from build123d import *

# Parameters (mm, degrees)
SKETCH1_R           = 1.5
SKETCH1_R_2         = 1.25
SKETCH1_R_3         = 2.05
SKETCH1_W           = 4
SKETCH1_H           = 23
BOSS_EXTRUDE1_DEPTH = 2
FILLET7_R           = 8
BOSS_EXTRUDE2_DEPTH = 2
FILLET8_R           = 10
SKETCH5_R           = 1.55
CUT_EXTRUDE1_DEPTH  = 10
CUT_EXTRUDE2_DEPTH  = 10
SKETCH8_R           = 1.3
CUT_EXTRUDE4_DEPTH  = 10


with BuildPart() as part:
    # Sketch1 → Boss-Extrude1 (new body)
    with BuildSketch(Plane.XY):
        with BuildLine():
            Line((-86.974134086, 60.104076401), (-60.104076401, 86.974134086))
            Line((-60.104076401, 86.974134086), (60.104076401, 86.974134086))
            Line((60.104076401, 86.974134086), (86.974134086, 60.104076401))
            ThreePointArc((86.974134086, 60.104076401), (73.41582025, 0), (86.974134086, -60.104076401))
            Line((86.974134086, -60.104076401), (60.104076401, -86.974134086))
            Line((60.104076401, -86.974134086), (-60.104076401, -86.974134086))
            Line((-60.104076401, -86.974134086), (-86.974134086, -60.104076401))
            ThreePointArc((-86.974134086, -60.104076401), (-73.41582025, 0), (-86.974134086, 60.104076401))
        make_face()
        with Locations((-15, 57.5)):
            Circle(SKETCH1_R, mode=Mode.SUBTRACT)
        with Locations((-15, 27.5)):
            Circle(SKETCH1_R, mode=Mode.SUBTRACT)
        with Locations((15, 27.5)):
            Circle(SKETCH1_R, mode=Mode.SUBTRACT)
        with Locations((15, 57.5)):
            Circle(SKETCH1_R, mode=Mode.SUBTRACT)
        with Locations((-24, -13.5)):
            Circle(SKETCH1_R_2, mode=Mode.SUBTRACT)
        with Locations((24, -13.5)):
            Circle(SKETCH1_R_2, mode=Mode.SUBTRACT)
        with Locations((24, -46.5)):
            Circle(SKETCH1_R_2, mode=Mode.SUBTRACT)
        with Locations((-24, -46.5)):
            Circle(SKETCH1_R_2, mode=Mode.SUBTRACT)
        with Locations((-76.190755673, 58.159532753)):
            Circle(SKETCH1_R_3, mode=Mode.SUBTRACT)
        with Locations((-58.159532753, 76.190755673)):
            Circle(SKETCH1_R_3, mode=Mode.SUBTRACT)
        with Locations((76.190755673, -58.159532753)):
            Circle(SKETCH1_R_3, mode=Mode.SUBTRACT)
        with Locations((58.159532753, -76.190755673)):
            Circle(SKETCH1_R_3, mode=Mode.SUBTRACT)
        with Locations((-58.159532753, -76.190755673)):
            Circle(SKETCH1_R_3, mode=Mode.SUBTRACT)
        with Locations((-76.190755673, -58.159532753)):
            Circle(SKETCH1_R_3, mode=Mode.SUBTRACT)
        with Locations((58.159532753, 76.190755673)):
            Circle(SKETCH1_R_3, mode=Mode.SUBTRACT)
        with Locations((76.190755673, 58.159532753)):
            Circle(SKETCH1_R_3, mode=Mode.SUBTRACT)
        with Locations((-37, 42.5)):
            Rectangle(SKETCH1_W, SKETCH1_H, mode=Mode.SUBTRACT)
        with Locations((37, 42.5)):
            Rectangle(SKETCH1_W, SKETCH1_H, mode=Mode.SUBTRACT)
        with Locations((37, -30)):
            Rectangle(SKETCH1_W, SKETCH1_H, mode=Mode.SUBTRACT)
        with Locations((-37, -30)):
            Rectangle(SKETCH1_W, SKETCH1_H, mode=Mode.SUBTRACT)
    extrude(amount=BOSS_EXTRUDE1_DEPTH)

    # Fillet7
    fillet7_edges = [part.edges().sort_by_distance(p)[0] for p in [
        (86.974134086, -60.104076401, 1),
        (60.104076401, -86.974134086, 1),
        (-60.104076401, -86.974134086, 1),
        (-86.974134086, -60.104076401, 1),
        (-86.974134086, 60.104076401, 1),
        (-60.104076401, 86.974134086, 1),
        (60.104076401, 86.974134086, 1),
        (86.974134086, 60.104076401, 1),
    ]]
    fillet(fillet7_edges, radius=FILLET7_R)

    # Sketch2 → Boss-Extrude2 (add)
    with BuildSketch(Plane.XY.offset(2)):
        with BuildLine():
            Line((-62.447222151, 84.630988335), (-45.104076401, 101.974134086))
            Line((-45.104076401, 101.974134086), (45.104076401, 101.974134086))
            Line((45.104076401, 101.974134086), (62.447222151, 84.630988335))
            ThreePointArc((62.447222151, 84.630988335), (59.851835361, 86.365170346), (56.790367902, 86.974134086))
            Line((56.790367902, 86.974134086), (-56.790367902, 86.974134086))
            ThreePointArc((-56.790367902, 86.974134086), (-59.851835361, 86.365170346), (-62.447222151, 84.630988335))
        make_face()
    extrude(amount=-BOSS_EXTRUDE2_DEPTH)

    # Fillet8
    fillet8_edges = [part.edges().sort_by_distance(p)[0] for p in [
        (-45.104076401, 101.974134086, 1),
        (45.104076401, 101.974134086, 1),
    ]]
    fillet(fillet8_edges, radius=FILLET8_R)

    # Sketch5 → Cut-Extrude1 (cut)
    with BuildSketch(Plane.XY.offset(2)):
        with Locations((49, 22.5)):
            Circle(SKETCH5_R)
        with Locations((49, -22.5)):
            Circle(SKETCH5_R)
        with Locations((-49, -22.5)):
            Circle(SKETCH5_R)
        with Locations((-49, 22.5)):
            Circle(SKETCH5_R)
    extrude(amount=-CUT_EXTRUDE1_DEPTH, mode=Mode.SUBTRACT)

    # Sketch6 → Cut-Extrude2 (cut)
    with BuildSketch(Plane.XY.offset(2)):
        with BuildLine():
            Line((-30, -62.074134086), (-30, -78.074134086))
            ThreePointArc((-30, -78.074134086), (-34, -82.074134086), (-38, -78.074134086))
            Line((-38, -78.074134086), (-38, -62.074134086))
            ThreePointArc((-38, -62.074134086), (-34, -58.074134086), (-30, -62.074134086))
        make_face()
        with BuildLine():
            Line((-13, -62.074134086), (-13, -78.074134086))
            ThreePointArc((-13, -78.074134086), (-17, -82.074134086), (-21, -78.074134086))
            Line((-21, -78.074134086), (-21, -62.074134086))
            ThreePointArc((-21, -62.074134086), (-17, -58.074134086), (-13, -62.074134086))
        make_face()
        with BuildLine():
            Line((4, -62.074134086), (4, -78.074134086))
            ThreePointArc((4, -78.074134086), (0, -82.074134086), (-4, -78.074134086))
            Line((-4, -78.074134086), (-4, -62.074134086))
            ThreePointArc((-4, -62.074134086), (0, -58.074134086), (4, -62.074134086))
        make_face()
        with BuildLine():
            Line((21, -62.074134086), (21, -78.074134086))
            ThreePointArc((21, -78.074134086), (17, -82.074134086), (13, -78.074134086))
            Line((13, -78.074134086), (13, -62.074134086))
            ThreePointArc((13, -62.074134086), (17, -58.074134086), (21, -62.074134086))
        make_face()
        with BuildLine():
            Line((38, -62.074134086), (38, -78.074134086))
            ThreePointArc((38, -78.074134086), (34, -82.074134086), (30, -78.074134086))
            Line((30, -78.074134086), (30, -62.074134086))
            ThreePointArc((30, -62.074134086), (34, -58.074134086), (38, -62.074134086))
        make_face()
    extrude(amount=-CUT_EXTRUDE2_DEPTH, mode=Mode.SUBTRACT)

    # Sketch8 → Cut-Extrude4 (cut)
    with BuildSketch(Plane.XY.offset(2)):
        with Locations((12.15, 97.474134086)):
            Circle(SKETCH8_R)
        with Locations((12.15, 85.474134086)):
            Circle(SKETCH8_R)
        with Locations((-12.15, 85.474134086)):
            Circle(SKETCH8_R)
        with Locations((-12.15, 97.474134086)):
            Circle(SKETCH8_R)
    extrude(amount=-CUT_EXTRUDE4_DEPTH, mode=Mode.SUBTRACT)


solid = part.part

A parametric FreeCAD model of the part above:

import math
import FreeCAD as App
import Part
import Sketcher


def edges_at(feature, points):
    """Names of the edges that pass closest to the given points."""
    edges = feature.Shape.Edges
    near = lambda p: min(range(len(edges)), key=lambda i: edges[i].distToShape(Part.Vertex(*p))[0])
    return sorted({f"Edge{near(p) + 1}" for p in points})

doc = App.newDocument("Part")
body = doc.addObject("PartDesign::Body", "Body")

sketch1 = doc.addObject("Sketcher::SketchObject", "Sketch")
body.addObject(sketch1)
sketch1.AttachmentSupport = (doc.XY_Plane, [""])
sketch1.MapMode = "FlatFace"
sketch1.addGeometry([
    Part.LineSegment(App.Vector(-60.1, 87, 0), App.Vector(-87, 60.1, 0)),
    Part.ArcOfCircle(Part.Circle(App.Vector(-213.4, 0, 0), App.Vector(0, 0, 1), 140), math.radians(-25), math.radians(25)),
    Part.LineSegment(App.Vector(-87, -60.1, 0), App.Vector(-60.1, -87, 0)),
    Part.LineSegment(App.Vector(-60.1, -87, 0), App.Vector(60.1, -87, 0)),
    Part.LineSegment(App.Vector(60.1, -87, 0), App.Vector(87, -60.1, 0)),
    Part.ArcOfCircle(Part.Circle(App.Vector(213.4, 0, 0), App.Vector(0, 0, 1), 140), math.radians(155), math.radians(205)),
    Part.LineSegment(App.Vector(87, 60.1, 0), App.Vector(60.1, 87, 0)),
    Part.LineSegment(App.Vector(60.1, 87, 0), App.Vector(-60.1, 87, 0)),
    Part.Circle(App.Vector(58.2, -76.2, 0), App.Vector(0, 0, 1), 2),
    Part.Circle(App.Vector(76.2, -58.2, 0), App.Vector(0, 0, 1), 2),
    Part.Circle(App.Vector(24, -46.5, 0), App.Vector(0, 0, 1), 1.2),
    Part.LineSegment(App.Vector(35, -41.5, 0), App.Vector(35, -18.5, 0)),
    Part.LineSegment(App.Vector(35, -18.5, 0), App.Vector(39, -18.5, 0)),
    Part.LineSegment(App.Vector(39, -18.5, 0), App.Vector(39, -41.5, 0)),
    Part.LineSegment(App.Vector(39, -41.5, 0), App.Vector(35, -41.5, 0)),
    Part.Circle(App.Vector(24, -13.5, 0), App.Vector(0, 0, 1), 1.2),
    Part.Circle(App.Vector(-24, -46.5, 0), App.Vector(0, 0, 1), 1.2),
    Part.Circle(App.Vector(-58.2, -76.2, 0), App.Vector(0, 0, 1), 2),
    Part.Circle(App.Vector(-76.2, -58.2, 0), App.Vector(0, 0, 1), 2),
    Part.LineSegment(App.Vector(-39, -41.5, 0), App.Vector(-39, -18.5, 0)),
    Part.LineSegment(App.Vector(-39, -18.5, 0), App.Vector(-35, -18.5, 0)),
    Part.LineSegment(App.Vector(-35, -18.5, 0), App.Vector(-35, -41.5, 0)),
    Part.LineSegment(App.Vector(-35, -41.5, 0), App.Vector(-39, -41.5, 0)),
    Part.Circle(App.Vector(-24, -13.5, 0), App.Vector(0, 0, 1), 1.2),
    Part.Circle(App.Vector(15, 27.5, 0), App.Vector(0, 0, 1), 1.5),
    Part.Circle(App.Vector(76.2, 58.2, 0), App.Vector(0, 0, 1), 2),
    Part.Circle(App.Vector(58.2, 76.2, 0), App.Vector(0, 0, 1), 2),
    Part.LineSegment(App.Vector(35, 31, 0), App.Vector(35, 54, 0)),
    Part.LineSegment(App.Vector(35, 54, 0), App.Vector(39, 54, 0)),
    Part.LineSegment(App.Vector(39, 54, 0), App.Vector(39, 31, 0)),
    Part.LineSegment(App.Vector(39, 31, 0), App.Vector(35, 31, 0)),
    Part.Circle(App.Vector(15, 57.5, 0), App.Vector(0, 0, 1), 1.5),
    Part.Circle(App.Vector(-15, 27.5, 0), App.Vector(0, 0, 1), 1.5),
    Part.Circle(App.Vector(-15, 57.5, 0), App.Vector(0, 0, 1), 1.5),
    Part.LineSegment(App.Vector(-39, 31, 0), App.Vector(-39, 54, 0)),
    Part.LineSegment(App.Vector(-39, 54, 0), App.Vector(-35, 54, 0)),
    Part.LineSegment(App.Vector(-35, 54, 0), App.Vector(-35, 31, 0)),
    Part.LineSegment(App.Vector(-35, 31, 0), App.Vector(-39, 31, 0)),
    Part.Circle(App.Vector(-76.2, 58.2, 0), App.Vector(0, 0, 1), 2),
    Part.Circle(App.Vector(-58.2, 76.2, 0), App.Vector(0, 0, 1), 2),
], False)
sketch1.addConstraint([
    Sketcher.Constraint("Coincident", 0, 2, 1, 2),
    Sketcher.Constraint("Coincident", 1, 1, 2, 1),
    Sketcher.Constraint("Coincident", 2, 2, 3, 1),
    Sketcher.Constraint("Coincident", 3, 2, 4, 1),
    Sketcher.Constraint("Coincident", 4, 2, 5, 2),
    Sketcher.Constraint("Coincident", 5, 1, 6, 1),
    Sketcher.Constraint("Coincident", 6, 2, 7, 1),
    Sketcher.Constraint("Coincident", 7, 2, 0, 1),
    Sketcher.Constraint("Coincident", 11, 2, 12, 1),
    Sketcher.Constraint("Coincident", 12, 2, 13, 1),
    Sketcher.Constraint("Coincident", 13, 2, 14, 1),
    Sketcher.Constraint("Coincident", 14, 2, 11, 1),
    Sketcher.Constraint("Coincident", 19, 2, 20, 1),
    Sketcher.Constraint("Coincident", 20, 2, 21, 1),
    Sketcher.Constraint("Coincident", 21, 2, 22, 1),
    Sketcher.Constraint("Coincident", 22, 2, 19, 1),
    Sketcher.Constraint("Coincident", 27, 2, 28, 1),
    Sketcher.Constraint("Coincident", 28, 2, 29, 1),
    Sketcher.Constraint("Coincident", 29, 2, 30, 1),
    Sketcher.Constraint("Coincident", 30, 2, 27, 1),
    Sketcher.Constraint("Coincident", 34, 2, 35, 1),
    Sketcher.Constraint("Coincident", 35, 2, 36, 1),
    Sketcher.Constraint("Coincident", 36, 2, 37, 1),
    Sketcher.Constraint("Coincident", 37, 2, 34, 1),
    Sketcher.Constraint("Horizontal", 3),
    Sketcher.Constraint("Horizontal", 7),
    Sketcher.Constraint("Vertical", 11),
    Sketcher.Constraint("Horizontal", 12),
    Sketcher.Constraint("Vertical", 13),
    Sketcher.Constraint("Horizontal", 14),
    Sketcher.Constraint("Vertical", 19),
    Sketcher.Constraint("Horizontal", 20),
    Sketcher.Constraint("Vertical", 21),
    Sketcher.Constraint("Horizontal", 22),
    Sketcher.Constraint("Vertical", 27),
    Sketcher.Constraint("Horizontal", 28),
    Sketcher.Constraint("Vertical", 29),
    Sketcher.Constraint("Horizontal", 30),
    Sketcher.Constraint("Vertical", 34),
    Sketcher.Constraint("Horizontal", 35),
    Sketcher.Constraint("Vertical", 36),
    Sketcher.Constraint("Horizontal", 37),
    Sketcher.Constraint("Equal", 1, 5),
    Sketcher.Constraint("Equal", 8, 9),
    Sketcher.Constraint("Equal", 10, 15),
    Sketcher.Constraint("Equal", 15, 16),
    Sketcher.Constraint("Equal", 9, 17),
    Sketcher.Constraint("Equal", 17, 18),
    Sketcher.Constraint("Equal", 16, 23),
    Sketcher.Constraint("Equal", 18, 25),
    Sketcher.Constraint("Equal", 25, 26),
    Sketcher.Constraint("Equal", 24, 31),
    Sketcher.Constraint("Equal", 31, 32),
    Sketcher.Constraint("Equal", 32, 33),
    Sketcher.Constraint("Equal", 26, 38),
    Sketcher.Constraint("Equal", 38, 39),
    Sketcher.Constraint("Symmetric", 1, 3, 5, 3, -1, 1),
    Sketcher.Constraint("Symmetric", 18, 3, 25, 3, -1, 1),
    Sketcher.Constraint("Symmetric", 17, 3, 26, 3, -1, 1),
    Sketcher.Constraint("Symmetric", 9, 3, 38, 3, -1, 1),
    Sketcher.Constraint("Symmetric", 8, 3, 39, 3, -1, 1),
    Sketcher.Constraint("Symmetric", 2, 2, 6, 2, -1, 1),
    Sketcher.Constraint("Symmetric", 10, 3, 16, 3, -2),
    Sketcher.Constraint("Symmetric", 8, 3, 17, 3, -2),
    Sketcher.Constraint("Symmetric", 9, 3, 18, 3, -2),
    Sketcher.Constraint("Symmetric", 15, 3, 23, 3, -2),
    Sketcher.Constraint("Symmetric", 24, 3, 32, 3, -2),
    Sketcher.Constraint("Symmetric", 31, 3, 33, 3, -2),
    Sketcher.Constraint("Symmetric", 1, 1, 4, 2, -2),
    Sketcher.Constraint("Symmetric", 12, 2, 19, 2, -2),
    Sketcher.Constraint("Symmetric", 14, 2, 21, 2, -2),
    Sketcher.Constraint("Symmetric", 28, 2, 34, 2, -2),
    Sketcher.Constraint("Symmetric", 30, 2, 36, 2, -2),
    Sketcher.Constraint("Perpendicular", 0, 2),
    Sketcher.Constraint("Perpendicular", 2, 4),
    Sketcher.Constraint("Perpendicular", 4, 6),
    Sketcher.Constraint("Horizontal", 0, 2, 5, 1),
    Sketcher.Constraint("Vertical", 10, 3, 15, 3),
    Sketcher.Constraint("Vertical", 24, 3, 31, 3),
    Sketcher.Constraint("Vertical", 3, 2, 6, 2),
    Sketcher.Constraint("Vertical", 14, 2, 27, 2),
    Sketcher.Constraint("Vertical", 13, 2, 28, 2),
    Sketcher.Constraint("Equal", 21, 27),
    Sketcher.Constraint("Diameter", 24, 3.0),
    Sketcher.Constraint("Radius", 1, 140.0),
    Sketcher.Constraint("Diameter", 8, 4.1),
    Sketcher.Constraint("Diameter", 10, 2.5),
    Sketcher.Constraint("DistanceX", 12, 1, 12, 2, 4.0),
    Sketcher.Constraint("DistanceY", 11, 1, 11, 2, 23.0),
    Sketcher.Constraint("Distance", 0, 38.0),
    Sketcher.Constraint("DistanceX", -1, 1, 10, 3, 24.0),
    Sketcher.Constraint("DistanceX", -1, 1, 24, 3, 15.0),
    Sketcher.Constraint("DistanceX", -1, 1, 11, 2, 35.0),
    Sketcher.Constraint("DistanceY", -1, 1, 27, 2, 54.0),
    Sketcher.Constraint("DistanceY", 10, 3, 15, 3, 33.0),
    Sketcher.Constraint("DistanceY", 15, 3, 24, 3, 41.0),
    Sketcher.Constraint("DistanceY", 24, 3, 31, 3, 30.0),
    Sketcher.Constraint("DistanceY", 11, 2, 15, 3, 5.0),
    Sketcher.Constraint("DistanceY", 10, 3, -1, 1, 46.5),
    Sketcher.Constraint("DistanceX", 0, 2, 39, 3, 28.814601),
    Sketcher.Constraint("DistanceY", 2, 2, 18, 3, 28.814601),
    Sketcher.Constraint("DistanceX", 3, 1, 3, 2, 120.208153),
    Sketcher.Constraint("DistanceX", 1, 3, -1, 1, 213.41582),
    Sketcher.Constraint("DistanceX", 17, 3, 9, 3, 134.350288),
    Sketcher.Constraint("DistanceY", 0, 2, 39, 3, 16.086679),
])
pad1 = doc.addObject("PartDesign::Pad", "Pad")
body.addObject(pad1)
pad1.Profile = sketch1
pad1.Length = 2
doc.recompute()

fillet = doc.addObject("PartDesign::Fillet", "Fillet")
body.addObject(fillet)
fillet.Base = (pad1, edges_at(pad1, [
    (86.974, -60.104, 1),
    (60.104, -86.974, 1),
    (-60.104, -86.974, 1),
    (-86.974, -60.104, 1),
    (-86.974, 60.104, 1),
    (-60.104, 86.974, 1),
    (60.104, 86.974, 1),
    (86.974, 60.104, 1),
]))
fillet.Radius = 8

sketch2 = doc.addObject("Sketcher::SketchObject", "Sketch001")
body.addObject(sketch2)
sketch2.AttachmentSupport = (doc.XY_Plane, [""])
sketch2.MapMode = "FlatFace"
sketch2.AttachmentOffset = App.Placement(App.Vector(0, 0, 2), App.Rotation())
sketch2.addGeometry([
    Part.LineSegment(App.Vector(-45, 102, 0), App.Vector(-62, 85, 0)),
    Part.ArcOfCircle(Part.Circle(App.Vector(-57, 79, 0), App.Vector(0, 0, 1), 8), math.radians(90), math.radians(135)),
    Part.LineSegment(App.Vector(-57, 87, 0), App.Vector(57, 87, 0)),
    Part.ArcOfCircle(Part.Circle(App.Vector(57, 79, 0), App.Vector(0, 0, 1), 8), math.radians(45), math.radians(90)),
    Part.LineSegment(App.Vector(62, 85, 0), App.Vector(45, 102, 0)),
    Part.LineSegment(App.Vector(45, 102, 0), App.Vector(-45, 102, 0)),
], False)
sketch2.addConstraint([
    Sketcher.Constraint("Tangent", 0, 2, 1, 2),
    Sketcher.Constraint("Tangent", 1, 1, 2, 1),
    Sketcher.Constraint("Tangent", 2, 2, 3, 2),
    Sketcher.Constraint("Tangent", 3, 1, 4, 1),
    Sketcher.Constraint("Coincident", 4, 2, 5, 1),
    Sketcher.Constraint("Coincident", 5, 2, 0, 1),
    Sketcher.Constraint("Horizontal", 2),
    Sketcher.Constraint("Horizontal", 5),
    Sketcher.Constraint("Equal", 1, 3),
    Sketcher.Constraint("Symmetric", 0, 2, 3, 1, -2),
    Sketcher.Constraint("Perpendicular", 0, 4),
    Sketcher.Constraint("Radius", 1, 8.0),
    Sketcher.Constraint("DistanceY", 2, 2, 4, 2, 15.0),
    Sketcher.Constraint("DistanceX", 2, 1, 2, 2, 113.580736),
    Sketcher.Constraint("DistanceY", -1, 1, 0, 2, 84.630988),
])
pad2 = doc.addObject("PartDesign::Pad", "Pad001")
body.addObject(pad2)
pad2.Profile = sketch2
pad2.Length = 2
pad2.Reversed = True
doc.recompute()

fillet2 = doc.addObject("PartDesign::Fillet", "Fillet001")
body.addObject(fillet2)
fillet2.Base = (pad2, edges_at(pad2, [(-45.104, 101.974, 1), (45.104, 101.974, 1)]))
fillet2.Radius = 10

sketch3 = doc.addObject("Sketcher::SketchObject", "Sketch002")
body.addObject(sketch3)
sketch3.AttachmentSupport = (doc.XY_Plane, [""])
sketch3.MapMode = "FlatFace"
sketch3.AttachmentOffset = App.Placement(App.Vector(0, 0, 2), App.Rotation())
sketch3.addGeometry([
    Part.Circle(App.Vector(49, 22.5, 0), App.Vector(0, 0, 1), 1.6),
    Part.Circle(App.Vector(49, -22.5, 0), App.Vector(0, 0, 1), 1.6),
    Part.Circle(App.Vector(-49, -22.5, 0), App.Vector(0, 0, 1), 1.6),
    Part.Circle(App.Vector(-49, 22.5, 0), App.Vector(0, 0, 1), 1.6),
], False)
sketch3.addConstraint([
    Sketcher.Constraint("Equal", 0, 1),
    Sketcher.Constraint("Equal", 1, 2),
    Sketcher.Constraint("Equal", 2, 3),
    Sketcher.Constraint("Symmetric", 0, 3, 2, 3, -1, 1),
    Sketcher.Constraint("Symmetric", 1, 3, 3, 3, -1, 1),
    Sketcher.Constraint("Symmetric", 1, 3, 2, 3, -2),
    Sketcher.Constraint("Diameter", 0, 3.1),
    Sketcher.Constraint("DistanceX", -1, 1, 0, 3, 49.0),
    Sketcher.Constraint("DistanceY", 1, 3, 0, 3, 45.0),
])
pocket1 = doc.addObject("PartDesign::Pocket", "Pocket")
body.addObject(pocket1)
pocket1.Profile = sketch3
pocket1.Length = 10

sketch4 = doc.addObject("Sketcher::SketchObject", "Sketch003")
body.addObject(sketch4)
sketch4.AttachmentSupport = (doc.XY_Plane, [""])
sketch4.MapMode = "FlatFace"
sketch4.AttachmentOffset = App.Placement(App.Vector(0, 0, 2), App.Rotation())
sketch4.addGeometry([
    Part.LineSegment(App.Vector(-30, -78.1, 0), App.Vector(-30, -62.1, 0)),
    Part.ArcOfCircle(Part.Circle(App.Vector(-34, -62.1, 0), App.Vector(0, 0, 1), 4), math.radians(0), math.radians(180)),
    Part.LineSegment(App.Vector(-38, -62.1, 0), App.Vector(-38, -78.1, 0)),
    Part.ArcOfCircle(Part.Circle(App.Vector(-34, -78.1, 0), App.Vector(0, 0, 1), 4), math.radians(180), math.radians(360)),
    Part.LineSegment(App.Vector(-13, -78.1, 0), App.Vector(-13, -62.1, 0)),
    Part.ArcOfCircle(Part.Circle(App.Vector(-17, -62.1, 0), App.Vector(0, 0, 1), 4), math.radians(0), math.radians(180)),
    Part.LineSegment(App.Vector(-21, -62.1, 0), App.Vector(-21, -78.1, 0)),
    Part.ArcOfCircle(Part.Circle(App.Vector(-17, -78.1, 0), App.Vector(0, 0, 1), 4), math.radians(180), math.radians(360)),
    Part.LineSegment(App.Vector(4, -78.1, 0), App.Vector(4, -62.1, 0)),
    Part.ArcOfCircle(Part.Circle(App.Vector(0, -62.1, 0), App.Vector(0, 0, 1), 4), math.radians(0), math.radians(180)),
    Part.LineSegment(App.Vector(-4, -62.1, 0), App.Vector(-4, -78.1, 0)),
    Part.ArcOfCircle(Part.Circle(App.Vector(0, -78.1, 0), App.Vector(0, 0, 1), 4), math.radians(180), math.radians(360)),
    Part.LineSegment(App.Vector(21, -78.1, 0), App.Vector(21, -62.1, 0)),
    Part.ArcOfCircle(Part.Circle(App.Vector(17, -62.1, 0), App.Vector(0, 0, 1), 4), math.radians(0), math.radians(180)),
    Part.LineSegment(App.Vector(13, -62.1, 0), App.Vector(13, -78.1, 0)),
    Part.ArcOfCircle(Part.Circle(App.Vector(17, -78.1, 0), App.Vector(0, 0, 1), 4), math.radians(180), math.radians(360)),
    Part.LineSegment(App.Vector(38, -78.1, 0), App.Vector(38, -62.1, 0)),
    Part.ArcOfCircle(Part.Circle(App.Vector(34, -62.1, 0), App.Vector(0, 0, 1), 4), math.radians(0), math.radians(180)),
    Part.LineSegment(App.Vector(30, -62.1, 0), App.Vector(30, -78.1, 0)),
    Part.ArcOfCircle(Part.Circle(App.Vector(34, -78.1, 0), App.Vector(0, 0, 1), 4), math.radians(180), math.radians(360)),
], False)
sketch4.addConstraint([
    Sketcher.Constraint("Tangent", 0, 2, 1, 1),
    Sketcher.Constraint("Tangent", 1, 2, 2, 1),
    Sketcher.Constraint("Tangent", 2, 2, 3, 1),
    Sketcher.Constraint("Tangent", 3, 2, 0, 1),
    Sketcher.Constraint("Tangent", 4, 2, 5, 1),
    Sketcher.Constraint("Tangent", 5, 2, 6, 1),
    Sketcher.Constraint("Tangent", 6, 2, 7, 1),
    Sketcher.Constraint("Tangent", 7, 2, 4, 1),
    Sketcher.Constraint("Tangent", 8, 2, 9, 1),
    Sketcher.Constraint("Tangent", 9, 2, 10, 1),
    Sketcher.Constraint("Tangent", 10, 2, 11, 1),
    Sketcher.Constraint("Tangent", 11, 2, 8, 1),
    Sketcher.Constraint("Tangent", 12, 2, 13, 1),
    Sketcher.Constraint("Tangent", 13, 2, 14, 1),
    Sketcher.Constraint("Tangent", 14, 2, 15, 1),
    Sketcher.Constraint("Tangent", 15, 2, 12, 1),
    Sketcher.Constraint("Tangent", 16, 2, 17, 1),
    Sketcher.Constraint("Tangent", 17, 2, 18, 1),
    Sketcher.Constraint("Tangent", 18, 2, 19, 1),
    Sketcher.Constraint("Tangent", 19, 2, 16, 1),
    Sketcher.Constraint("Vertical", 0),
    Sketcher.Constraint("Vertical", 2),
    Sketcher.Constraint("Vertical", 4),
    Sketcher.Constraint("Vertical", 6),
    Sketcher.Constraint("Vertical", 8),
    Sketcher.Constraint("Vertical", 10),
    Sketcher.Constraint("Vertical", 12),
    Sketcher.Constraint("Vertical", 14),
    Sketcher.Constraint("Vertical", 16),
    Sketcher.Constraint("Vertical", 18),
    Sketcher.Constraint("Equal", 3, 5),
    Sketcher.Constraint("Equal", 7, 9),
    Sketcher.Constraint("Equal", 11, 13),
    Sketcher.Constraint("Equal", 15, 17),
    Sketcher.Constraint("Symmetric", 5, 3, 13, 3, -2),
    Sketcher.Constraint("Symmetric", 1, 3, 17, 3, -2),
    Sketcher.Constraint("PointOnObject", 9, 3, -2),
    Sketcher.Constraint("Horizontal", 1, 3, 5, 3),
    Sketcher.Constraint("Horizontal", 3, 3, 7, 3),
    Sketcher.Constraint("Horizontal", 5, 3, 9, 3),
    Sketcher.Constraint("Horizontal", 7, 3, 11, 3),
    Sketcher.Constraint("Horizontal", 11, 3, 15, 3),
    Sketcher.Constraint("Horizontal", 15, 3, 19, 3),
    Sketcher.Constraint("Radius", 1, 4.0),
    Sketcher.Constraint("DistanceY", 0, 1, 0, 2, 16.0),
    Sketcher.Constraint("DistanceX", 1, 3, -1, 1, 34.0),
    Sketcher.Constraint("DistanceX", 5, 3, -1, 1, 17.0),
    Sketcher.Constraint("DistanceY", 1, 3, -1, 1, 62.074134),
])
pocket2 = doc.addObject("PartDesign::Pocket", "Pocket001")
body.addObject(pocket2)
pocket2.Profile = sketch4
pocket2.Length = 10

sketch5 = doc.addObject("Sketcher::SketchObject", "Sketch004")
body.addObject(sketch5)
sketch5.AttachmentSupport = (doc.XY_Plane, [""])
sketch5.MapMode = "FlatFace"
sketch5.AttachmentOffset = App.Placement(App.Vector(0, 0, 2), App.Rotation())
sketch5.addGeometry([
    Part.Circle(App.Vector(12.2, 97.5, 0), App.Vector(0, 0, 1), 1.3),
    Part.Circle(App.Vector(12.2, 85.5, 0), App.Vector(0, 0, 1), 1.3),
    Part.Circle(App.Vector(-12.2, 85.5, 0), App.Vector(0, 0, 1), 1.3),
    Part.Circle(App.Vector(-12.2, 97.5, 0), App.Vector(0, 0, 1), 1.3),
], False)
sketch5.addConstraint([
    Sketcher.Constraint("Equal", 0, 1),
    Sketcher.Constraint("Equal", 1, 2),
    Sketcher.Constraint("Equal", 2, 3),
    Sketcher.Constraint("Symmetric", 1, 3, 2, 3, -2),
    Sketcher.Constraint("Symmetric", 0, 3, 3, 3, -2),
    Sketcher.Constraint("Vertical", 0, 3, 1, 3),
    Sketcher.Constraint("Diameter", 0, 2.6),
    Sketcher.Constraint("DistanceY", 1, 3, 0, 3, 12.0),
    Sketcher.Constraint("DistanceX", 2, 3, 1, 3, 24.3),
    Sketcher.Constraint("DistanceY", -1, 1, 0, 3, 97.474134),
])
pocket3 = doc.addObject("PartDesign::Pocket", "Pocket002")
body.addObject(pocket3)
pocket3.Profile = sketch5
pocket3.Length = 10

doc.recompute()
